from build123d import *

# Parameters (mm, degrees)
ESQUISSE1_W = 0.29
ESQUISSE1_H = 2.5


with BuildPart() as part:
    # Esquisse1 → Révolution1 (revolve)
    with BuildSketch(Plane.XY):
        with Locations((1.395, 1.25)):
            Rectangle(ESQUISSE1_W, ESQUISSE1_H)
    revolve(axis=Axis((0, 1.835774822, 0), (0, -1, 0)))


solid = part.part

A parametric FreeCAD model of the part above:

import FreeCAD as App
import Part
import Sketcher
from FreeCAD import Vector

doc = App.newDocument("Part")
body = doc.addObject("PartDesign::Body", "Body")

# Sketch on XY plane
sketch1 = doc.addObject("Sketcher::SketchObject", "Sketch")
body.addObject(sketch1)
sketch1.AttachmentSupport = (doc.XY_Plane, [""])
sketch1.MapMode = "FlatFace"
sketch1.addGeometry([
    Part.LineSegment(Vector(1.25, 2.5, 0), Vector(1.25, 0, 0)),
    Part.LineSegment(Vector(1.25, 0, 0), Vector(1.54, 0, 0)),
    Part.LineSegment(Vector(1.54, 0, 0), Vector(1.54, 2.5, 0)),
    Part.LineSegment(Vector(1.54, 2.5, 0), Vector(1.25, 2.5, 0)),
], False)
sketch1.addConstraint([
    Sketcher.Constraint("Coincident", 0, 2, 1, 1),
    Sketcher.Constraint("Coincident", 1, 2, 2, 1),
    Sketcher.Constraint("Coincident", 2, 2, 3, 1),
    Sketcher.Constraint("Coincident", 3, 2, 0, 1),
    Sketcher.Constraint("Vertical", 0),
    Sketcher.Constraint("Horizontal", 1),
    Sketcher.Constraint("Vertical", 2),
    Sketcher.Constraint("Horizontal", 3),
    Sketcher.Constraint("PointOnObject", 0, 2, -1),
    Sketcher.Constraint("DistanceY", 0, 2, 0, 1, 2.5),
    Sketcher.Constraint("DistanceX", 1, 1, 1, 2, 0.29),
    Sketcher.Constraint("DistanceX", -1, 1, 0, 2, 1.25),
])
revolution = doc.addObject("PartDesign::Revolution", "Revolution")
body.addObject(revolution)
revolution.Profile = sketch1
revolution.ReferenceAxis = (sketch1, ["V_Axis"])
revolution.Angle = 360

doc.recompute()
